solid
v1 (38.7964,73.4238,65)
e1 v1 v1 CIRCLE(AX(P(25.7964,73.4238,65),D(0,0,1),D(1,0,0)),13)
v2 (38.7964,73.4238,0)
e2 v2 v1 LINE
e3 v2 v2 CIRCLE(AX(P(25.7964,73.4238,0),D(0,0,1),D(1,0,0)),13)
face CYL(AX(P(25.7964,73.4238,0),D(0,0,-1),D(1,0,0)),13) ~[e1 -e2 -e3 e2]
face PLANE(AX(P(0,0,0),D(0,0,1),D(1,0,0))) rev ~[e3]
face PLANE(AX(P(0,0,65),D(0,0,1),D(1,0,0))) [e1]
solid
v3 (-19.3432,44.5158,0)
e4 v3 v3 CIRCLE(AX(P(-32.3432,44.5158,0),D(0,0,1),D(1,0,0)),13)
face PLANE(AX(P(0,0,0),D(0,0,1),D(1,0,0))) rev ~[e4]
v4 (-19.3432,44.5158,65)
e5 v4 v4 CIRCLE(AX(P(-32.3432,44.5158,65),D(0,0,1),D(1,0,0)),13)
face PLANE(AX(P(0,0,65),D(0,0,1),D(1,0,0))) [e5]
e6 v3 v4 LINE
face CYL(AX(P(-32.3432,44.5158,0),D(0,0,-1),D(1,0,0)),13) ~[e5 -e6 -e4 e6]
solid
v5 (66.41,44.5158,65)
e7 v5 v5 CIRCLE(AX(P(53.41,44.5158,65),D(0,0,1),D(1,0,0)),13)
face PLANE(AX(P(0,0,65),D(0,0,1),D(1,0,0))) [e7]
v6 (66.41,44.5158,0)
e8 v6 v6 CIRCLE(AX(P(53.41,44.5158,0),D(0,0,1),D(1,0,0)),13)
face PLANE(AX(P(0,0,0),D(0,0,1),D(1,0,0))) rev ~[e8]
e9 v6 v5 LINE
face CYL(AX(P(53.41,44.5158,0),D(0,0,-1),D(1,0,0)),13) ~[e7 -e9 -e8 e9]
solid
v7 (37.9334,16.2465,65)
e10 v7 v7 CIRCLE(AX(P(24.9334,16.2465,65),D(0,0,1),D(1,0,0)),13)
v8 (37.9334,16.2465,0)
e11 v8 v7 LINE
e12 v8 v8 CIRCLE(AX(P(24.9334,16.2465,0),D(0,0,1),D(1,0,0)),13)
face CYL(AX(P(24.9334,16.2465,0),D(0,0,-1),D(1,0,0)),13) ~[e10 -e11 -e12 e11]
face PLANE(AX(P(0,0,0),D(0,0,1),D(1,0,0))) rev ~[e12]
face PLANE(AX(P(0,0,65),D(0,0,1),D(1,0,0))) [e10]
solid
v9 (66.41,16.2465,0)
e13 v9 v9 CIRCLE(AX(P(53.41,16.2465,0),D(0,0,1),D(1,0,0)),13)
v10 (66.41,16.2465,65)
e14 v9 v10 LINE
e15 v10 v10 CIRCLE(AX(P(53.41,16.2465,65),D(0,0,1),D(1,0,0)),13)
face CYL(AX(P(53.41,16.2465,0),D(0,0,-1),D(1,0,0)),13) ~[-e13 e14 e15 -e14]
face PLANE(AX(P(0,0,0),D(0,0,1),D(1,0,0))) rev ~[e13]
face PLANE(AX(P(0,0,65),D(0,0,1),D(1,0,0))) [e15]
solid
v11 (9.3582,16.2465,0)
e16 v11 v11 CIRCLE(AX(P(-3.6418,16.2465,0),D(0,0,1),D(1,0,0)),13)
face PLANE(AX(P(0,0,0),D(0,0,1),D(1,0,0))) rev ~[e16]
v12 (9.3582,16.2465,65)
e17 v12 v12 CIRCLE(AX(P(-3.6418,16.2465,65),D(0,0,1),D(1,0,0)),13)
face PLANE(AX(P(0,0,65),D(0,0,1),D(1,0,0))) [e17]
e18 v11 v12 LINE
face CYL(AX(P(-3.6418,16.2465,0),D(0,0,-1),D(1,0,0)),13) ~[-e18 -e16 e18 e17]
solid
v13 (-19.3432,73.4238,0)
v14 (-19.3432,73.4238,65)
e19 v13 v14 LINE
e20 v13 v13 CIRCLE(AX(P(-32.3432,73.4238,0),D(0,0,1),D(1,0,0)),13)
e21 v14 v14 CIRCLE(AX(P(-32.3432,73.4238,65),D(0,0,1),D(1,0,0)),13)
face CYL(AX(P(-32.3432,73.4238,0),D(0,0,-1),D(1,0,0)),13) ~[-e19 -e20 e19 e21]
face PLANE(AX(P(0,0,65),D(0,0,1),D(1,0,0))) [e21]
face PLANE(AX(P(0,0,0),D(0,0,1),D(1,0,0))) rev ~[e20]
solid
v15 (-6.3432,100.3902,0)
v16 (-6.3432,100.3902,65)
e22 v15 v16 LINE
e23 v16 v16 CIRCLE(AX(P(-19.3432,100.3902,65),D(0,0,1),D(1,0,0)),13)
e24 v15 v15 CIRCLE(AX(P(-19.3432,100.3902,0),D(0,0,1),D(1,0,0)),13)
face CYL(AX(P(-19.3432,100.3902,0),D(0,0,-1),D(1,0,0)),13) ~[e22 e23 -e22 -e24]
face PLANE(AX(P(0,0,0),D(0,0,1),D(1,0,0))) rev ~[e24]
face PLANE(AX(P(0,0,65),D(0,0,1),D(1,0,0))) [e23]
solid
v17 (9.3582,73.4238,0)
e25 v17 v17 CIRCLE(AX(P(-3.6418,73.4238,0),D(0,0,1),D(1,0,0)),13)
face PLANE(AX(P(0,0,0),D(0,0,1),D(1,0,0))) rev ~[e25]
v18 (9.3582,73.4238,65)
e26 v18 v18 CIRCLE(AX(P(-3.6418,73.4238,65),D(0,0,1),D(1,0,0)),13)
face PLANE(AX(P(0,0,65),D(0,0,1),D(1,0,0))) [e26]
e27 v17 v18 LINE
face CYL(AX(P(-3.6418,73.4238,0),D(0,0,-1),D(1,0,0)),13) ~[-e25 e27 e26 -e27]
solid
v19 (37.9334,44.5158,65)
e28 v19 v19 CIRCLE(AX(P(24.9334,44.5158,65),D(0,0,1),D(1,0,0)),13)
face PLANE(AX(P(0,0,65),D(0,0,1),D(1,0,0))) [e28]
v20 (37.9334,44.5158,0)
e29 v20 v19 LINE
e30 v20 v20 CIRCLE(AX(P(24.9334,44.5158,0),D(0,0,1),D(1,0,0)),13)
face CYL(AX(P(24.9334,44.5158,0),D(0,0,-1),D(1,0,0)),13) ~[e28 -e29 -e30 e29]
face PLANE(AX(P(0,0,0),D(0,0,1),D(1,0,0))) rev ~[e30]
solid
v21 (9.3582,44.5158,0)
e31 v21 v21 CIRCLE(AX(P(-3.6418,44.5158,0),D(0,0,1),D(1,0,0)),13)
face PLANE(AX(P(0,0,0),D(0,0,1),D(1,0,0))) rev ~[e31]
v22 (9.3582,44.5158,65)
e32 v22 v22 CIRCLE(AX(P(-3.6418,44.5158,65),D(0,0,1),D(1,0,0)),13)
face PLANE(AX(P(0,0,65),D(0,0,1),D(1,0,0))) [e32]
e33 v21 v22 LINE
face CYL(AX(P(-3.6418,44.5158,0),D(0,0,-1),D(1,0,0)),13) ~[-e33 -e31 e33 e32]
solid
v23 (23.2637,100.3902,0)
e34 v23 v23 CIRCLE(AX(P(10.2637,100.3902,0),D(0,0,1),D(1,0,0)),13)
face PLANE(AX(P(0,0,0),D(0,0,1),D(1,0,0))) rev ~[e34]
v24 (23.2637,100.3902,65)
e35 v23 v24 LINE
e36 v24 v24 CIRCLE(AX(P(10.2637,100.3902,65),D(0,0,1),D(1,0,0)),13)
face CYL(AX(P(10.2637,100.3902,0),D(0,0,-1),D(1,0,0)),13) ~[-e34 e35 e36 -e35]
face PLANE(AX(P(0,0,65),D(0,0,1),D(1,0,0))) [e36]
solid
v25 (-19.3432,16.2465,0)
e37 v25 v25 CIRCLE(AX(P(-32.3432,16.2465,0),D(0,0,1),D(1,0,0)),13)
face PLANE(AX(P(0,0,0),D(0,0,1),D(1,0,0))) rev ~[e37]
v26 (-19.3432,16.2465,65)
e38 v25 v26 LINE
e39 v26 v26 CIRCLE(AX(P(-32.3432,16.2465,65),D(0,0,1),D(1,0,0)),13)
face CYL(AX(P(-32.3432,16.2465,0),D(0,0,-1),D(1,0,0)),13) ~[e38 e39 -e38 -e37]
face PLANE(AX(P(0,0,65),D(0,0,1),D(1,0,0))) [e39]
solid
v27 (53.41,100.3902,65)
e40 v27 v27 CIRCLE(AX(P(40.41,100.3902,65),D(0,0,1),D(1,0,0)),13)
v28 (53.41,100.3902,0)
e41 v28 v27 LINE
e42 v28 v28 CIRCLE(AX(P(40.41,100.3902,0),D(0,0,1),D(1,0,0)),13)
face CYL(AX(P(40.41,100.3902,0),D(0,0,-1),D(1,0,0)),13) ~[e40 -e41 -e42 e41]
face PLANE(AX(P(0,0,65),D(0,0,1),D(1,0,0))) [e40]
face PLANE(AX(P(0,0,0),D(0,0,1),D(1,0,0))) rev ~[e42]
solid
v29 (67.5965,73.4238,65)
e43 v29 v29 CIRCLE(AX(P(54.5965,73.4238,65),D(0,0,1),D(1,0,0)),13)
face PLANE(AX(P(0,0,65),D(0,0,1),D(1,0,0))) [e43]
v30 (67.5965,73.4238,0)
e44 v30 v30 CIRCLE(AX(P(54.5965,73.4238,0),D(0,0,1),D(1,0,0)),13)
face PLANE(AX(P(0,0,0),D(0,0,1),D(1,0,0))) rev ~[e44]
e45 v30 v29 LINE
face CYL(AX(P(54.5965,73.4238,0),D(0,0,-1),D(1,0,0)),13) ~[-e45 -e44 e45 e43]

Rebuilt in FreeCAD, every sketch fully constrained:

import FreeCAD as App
import Part
import Sketcher

V = App.Vector

doc = App.newDocument("Part")
params = doc.addObject("Spreadsheet::Sheet", "Params")
for row, (alias, value) in enumerate([
    ("sketch1_diameter", "26 mm"),
    ("pad1_length", "65 mm"),
], start=1):
    params.set(f"A{row}", alias)
    params.set(f"B{row}", "=" + value)
    params.setAlias(f"B{row}", alias)

body = doc.addObject("PartDesign::Body", "Body")
body.AllowCompound = True

# Sketch on XY plane
sketch1 = body.newObject("Sketcher::SketchObject", "Sketch")
sketch1.AttachmentSupport = (doc.getObject("XY_Plane"), [""])
sketch1.MapMode = "FlatFace"
sketch1.addGeometry(Part.Circle(V(-32, 16, 0), V(0, 0, 1), 13), False)
sketch1.addGeometry(Part.Circle(V(-4, 16, 0), V(0, 0, 1), 13), False)
sketch1.addGeometry(Part.Circle(V(25, 16, 0), V(0, 0, 1), 13), False)
sketch1.addGeometry(Part.Circle(V(53, 16, 0), V(0, 0, 1), 13), False)
sketch1.addGeometry(Part.Circle(V(-32, 45, 0), V(0, 0, 1), 13), False)
sketch1.addGeometry(Part.Circle(V(-4, 45, 0), V(0, 0, 1), 13), False)
sketch1.addGeometry(Part.Circle(V(25, 45, 0), V(0, 0, 1), 13), False)
sketch1.addGeometry(Part.Circle(V(53, 45, 0), V(0, 0, 1), 13), False)
sketch1.addGeometry(Part.Circle(V(-4, 73, 0), V(0, 0, 1), 13), False)
sketch1.addGeometry(Part.Circle(V(10, 100, 0), V(0, 0, 1), 13), False)
sketch1.addGeometry(Part.Circle(V(40, 100, 0), V(0, 0, 1), 13), False)
sketch1.addGeometry(Part.Circle(V(-32, 73, 0), V(0, 0, 1), 13), False)
sketch1.addGeometry(Part.Circle(V(26, 73, 0), V(0, 0, 1), 13), False)
sketch1.addGeometry(Part.Circle(V(55, 73, 0), V(0, 0, 1), 13), False)
sketch1.addGeometry(Part.Circle(V(-19, 100, 0), V(0, 0, 1), 13), False)
sketch1.addConstraint(Sketcher.Constraint("Equal", 0, 1))
sketch1.addConstraint(Sketcher.Constraint("Equal", 1, 2))
sketch1.addConstraint(Sketcher.Constraint("Equal", 2, 3))
sketch1.addConstraint(Sketcher.Constraint("Equal", 3, 4))
sketch1.addConstraint(Sketcher.Constraint("Equal", 4, 5))
sketch1.addConstraint(Sketcher.Constraint("Equal", 5, 6))
sketch1.addConstraint(Sketcher.Constraint("Equal", 6, 7))
sketch1.addConstraint(Sketcher.Constraint("Equal", 7, 8))
sketch1.addConstraint(Sketcher.Constraint("Equal", 8, 9))
sketch1.addConstraint(Sketcher.Constraint("Equal", 9, 10))
sketch1.addConstraint(Sketcher.Constraint("Equal", 10, 11))
sketch1.addConstraint(Sketcher.Constraint("Equal", 11, 12))
sketch1.addConstraint(Sketcher.Constraint("Equal", 12, 13))
sketch1.addConstraint(Sketcher.Constraint("Equal", 13, 14))
sketch1.addConstraint(Sketcher.Constraint("Horizontal", 0, 3, 1, 3))
sketch1.addConstraint(Sketcher.Constraint("Horizontal", 1, 3, 2, 3))
sketch1.addConstraint(Sketcher.Constraint("Horizontal", 2, 3, 3, 3))
sketch1.addConstraint(Sketcher.Constraint("Horizontal", 4, 3, 5, 3))
sketch1.addConstraint(Sketcher.Constraint("Horizontal", 5, 3, 6, 3))
sketch1.addConstraint(Sketcher.Constraint("Horizontal", 6, 3, 7, 3))
sketch1.addConstraint(Sketcher.Constraint("Horizontal", 9, 3, 10, 3))
sketch1.addConstraint(Sketcher.Constraint("Horizontal", 8, 3, 11, 3))
sketch1.addConstraint(Sketcher.Constraint("Horizontal", 11, 3, 12, 3))
sketch1.addConstraint(Sketcher.Constraint("Horizontal", 12, 3, 13, 3))
sketch1.addConstraint(Sketcher.Constraint("Horizontal", 10, 3, 14, 3))
sketch1.addConstraint(Sketcher.Constraint("Vertical", 0, 3, 4, 3))
sketch1.addConstraint(Sketcher.Constraint("Vertical", 1, 3, 5, 3))
sketch1.addConstraint(Sketcher.Constraint("Vertical", 2, 3, 6, 3))
sketch1.addConstraint(Sketcher.Constraint("Vertical", 3, 3, 7, 3))
sketch1.addConstraint(Sketcher.Constraint("Vertical", 5, 3, 8, 3))
sketch1.addConstraint(Sketcher.Constraint("Vertical", 4, 3, 11, 3))
sketch1.addConstraint(Sketcher.Constraint("Diameter", 0, 26.0))
sketch1.addConstraint(Sketcher.Constraint("DistanceX", 10, 3, 7, 3, 13.0))
sketch1.addConstraint(Sketcher.Constraint("DistanceX", 11, 3, 14, 3, 13.0))
sketch1.addConstraint(Sketcher.Constraint("DistanceX", 12, 3, 13, 3, 28.8))
sketch1.addConstraint(Sketcher.Constraint("DistanceX", -1, 1, 3, 3, 53.41))
sketch1.addConstraint(Sketcher.Constraint("DistanceY", 5, 3, 8, 3, 28.908))
sketch1.addConstraint(Sketcher.Constraint("DistanceX", 4, 3, 9, 3, 42.607))
sketch1.addConstraint(Sketcher.Constraint("DistanceX", 6, 3, 12, 3, 0.863))
sketch1.addConstraint(Sketcher.Constraint("DistanceX", 0, 3, -1, 1, 32.3432))
sketch1.addConstraint(Sketcher.Constraint("DistanceY", -1, 1, 0, 3, 16.2465))
sketch1.addConstraint(Sketcher.Constraint("DistanceX", 1, 3, -1, 1, 3.6418))
sketch1.addConstraint(Sketcher.Constraint("DistanceX", -1, 1, 2, 3, 24.9334))
sketch1.addConstraint(Sketcher.Constraint("DistanceY", -1, 1, 4, 3, 44.5158))
sketch1.addConstraint(Sketcher.Constraint("DistanceY", -1, 1, 9, 3, 100.3902))
sketch1.setExpression("Constraints[31]", "Params.sketch1_diameter")
pad1 = body.newObject("PartDesign::Pad", "Pad")
pad1.Profile = sketch1
pad1.setExpression("Length", "Params.pad1_length")

doc.recompute()
